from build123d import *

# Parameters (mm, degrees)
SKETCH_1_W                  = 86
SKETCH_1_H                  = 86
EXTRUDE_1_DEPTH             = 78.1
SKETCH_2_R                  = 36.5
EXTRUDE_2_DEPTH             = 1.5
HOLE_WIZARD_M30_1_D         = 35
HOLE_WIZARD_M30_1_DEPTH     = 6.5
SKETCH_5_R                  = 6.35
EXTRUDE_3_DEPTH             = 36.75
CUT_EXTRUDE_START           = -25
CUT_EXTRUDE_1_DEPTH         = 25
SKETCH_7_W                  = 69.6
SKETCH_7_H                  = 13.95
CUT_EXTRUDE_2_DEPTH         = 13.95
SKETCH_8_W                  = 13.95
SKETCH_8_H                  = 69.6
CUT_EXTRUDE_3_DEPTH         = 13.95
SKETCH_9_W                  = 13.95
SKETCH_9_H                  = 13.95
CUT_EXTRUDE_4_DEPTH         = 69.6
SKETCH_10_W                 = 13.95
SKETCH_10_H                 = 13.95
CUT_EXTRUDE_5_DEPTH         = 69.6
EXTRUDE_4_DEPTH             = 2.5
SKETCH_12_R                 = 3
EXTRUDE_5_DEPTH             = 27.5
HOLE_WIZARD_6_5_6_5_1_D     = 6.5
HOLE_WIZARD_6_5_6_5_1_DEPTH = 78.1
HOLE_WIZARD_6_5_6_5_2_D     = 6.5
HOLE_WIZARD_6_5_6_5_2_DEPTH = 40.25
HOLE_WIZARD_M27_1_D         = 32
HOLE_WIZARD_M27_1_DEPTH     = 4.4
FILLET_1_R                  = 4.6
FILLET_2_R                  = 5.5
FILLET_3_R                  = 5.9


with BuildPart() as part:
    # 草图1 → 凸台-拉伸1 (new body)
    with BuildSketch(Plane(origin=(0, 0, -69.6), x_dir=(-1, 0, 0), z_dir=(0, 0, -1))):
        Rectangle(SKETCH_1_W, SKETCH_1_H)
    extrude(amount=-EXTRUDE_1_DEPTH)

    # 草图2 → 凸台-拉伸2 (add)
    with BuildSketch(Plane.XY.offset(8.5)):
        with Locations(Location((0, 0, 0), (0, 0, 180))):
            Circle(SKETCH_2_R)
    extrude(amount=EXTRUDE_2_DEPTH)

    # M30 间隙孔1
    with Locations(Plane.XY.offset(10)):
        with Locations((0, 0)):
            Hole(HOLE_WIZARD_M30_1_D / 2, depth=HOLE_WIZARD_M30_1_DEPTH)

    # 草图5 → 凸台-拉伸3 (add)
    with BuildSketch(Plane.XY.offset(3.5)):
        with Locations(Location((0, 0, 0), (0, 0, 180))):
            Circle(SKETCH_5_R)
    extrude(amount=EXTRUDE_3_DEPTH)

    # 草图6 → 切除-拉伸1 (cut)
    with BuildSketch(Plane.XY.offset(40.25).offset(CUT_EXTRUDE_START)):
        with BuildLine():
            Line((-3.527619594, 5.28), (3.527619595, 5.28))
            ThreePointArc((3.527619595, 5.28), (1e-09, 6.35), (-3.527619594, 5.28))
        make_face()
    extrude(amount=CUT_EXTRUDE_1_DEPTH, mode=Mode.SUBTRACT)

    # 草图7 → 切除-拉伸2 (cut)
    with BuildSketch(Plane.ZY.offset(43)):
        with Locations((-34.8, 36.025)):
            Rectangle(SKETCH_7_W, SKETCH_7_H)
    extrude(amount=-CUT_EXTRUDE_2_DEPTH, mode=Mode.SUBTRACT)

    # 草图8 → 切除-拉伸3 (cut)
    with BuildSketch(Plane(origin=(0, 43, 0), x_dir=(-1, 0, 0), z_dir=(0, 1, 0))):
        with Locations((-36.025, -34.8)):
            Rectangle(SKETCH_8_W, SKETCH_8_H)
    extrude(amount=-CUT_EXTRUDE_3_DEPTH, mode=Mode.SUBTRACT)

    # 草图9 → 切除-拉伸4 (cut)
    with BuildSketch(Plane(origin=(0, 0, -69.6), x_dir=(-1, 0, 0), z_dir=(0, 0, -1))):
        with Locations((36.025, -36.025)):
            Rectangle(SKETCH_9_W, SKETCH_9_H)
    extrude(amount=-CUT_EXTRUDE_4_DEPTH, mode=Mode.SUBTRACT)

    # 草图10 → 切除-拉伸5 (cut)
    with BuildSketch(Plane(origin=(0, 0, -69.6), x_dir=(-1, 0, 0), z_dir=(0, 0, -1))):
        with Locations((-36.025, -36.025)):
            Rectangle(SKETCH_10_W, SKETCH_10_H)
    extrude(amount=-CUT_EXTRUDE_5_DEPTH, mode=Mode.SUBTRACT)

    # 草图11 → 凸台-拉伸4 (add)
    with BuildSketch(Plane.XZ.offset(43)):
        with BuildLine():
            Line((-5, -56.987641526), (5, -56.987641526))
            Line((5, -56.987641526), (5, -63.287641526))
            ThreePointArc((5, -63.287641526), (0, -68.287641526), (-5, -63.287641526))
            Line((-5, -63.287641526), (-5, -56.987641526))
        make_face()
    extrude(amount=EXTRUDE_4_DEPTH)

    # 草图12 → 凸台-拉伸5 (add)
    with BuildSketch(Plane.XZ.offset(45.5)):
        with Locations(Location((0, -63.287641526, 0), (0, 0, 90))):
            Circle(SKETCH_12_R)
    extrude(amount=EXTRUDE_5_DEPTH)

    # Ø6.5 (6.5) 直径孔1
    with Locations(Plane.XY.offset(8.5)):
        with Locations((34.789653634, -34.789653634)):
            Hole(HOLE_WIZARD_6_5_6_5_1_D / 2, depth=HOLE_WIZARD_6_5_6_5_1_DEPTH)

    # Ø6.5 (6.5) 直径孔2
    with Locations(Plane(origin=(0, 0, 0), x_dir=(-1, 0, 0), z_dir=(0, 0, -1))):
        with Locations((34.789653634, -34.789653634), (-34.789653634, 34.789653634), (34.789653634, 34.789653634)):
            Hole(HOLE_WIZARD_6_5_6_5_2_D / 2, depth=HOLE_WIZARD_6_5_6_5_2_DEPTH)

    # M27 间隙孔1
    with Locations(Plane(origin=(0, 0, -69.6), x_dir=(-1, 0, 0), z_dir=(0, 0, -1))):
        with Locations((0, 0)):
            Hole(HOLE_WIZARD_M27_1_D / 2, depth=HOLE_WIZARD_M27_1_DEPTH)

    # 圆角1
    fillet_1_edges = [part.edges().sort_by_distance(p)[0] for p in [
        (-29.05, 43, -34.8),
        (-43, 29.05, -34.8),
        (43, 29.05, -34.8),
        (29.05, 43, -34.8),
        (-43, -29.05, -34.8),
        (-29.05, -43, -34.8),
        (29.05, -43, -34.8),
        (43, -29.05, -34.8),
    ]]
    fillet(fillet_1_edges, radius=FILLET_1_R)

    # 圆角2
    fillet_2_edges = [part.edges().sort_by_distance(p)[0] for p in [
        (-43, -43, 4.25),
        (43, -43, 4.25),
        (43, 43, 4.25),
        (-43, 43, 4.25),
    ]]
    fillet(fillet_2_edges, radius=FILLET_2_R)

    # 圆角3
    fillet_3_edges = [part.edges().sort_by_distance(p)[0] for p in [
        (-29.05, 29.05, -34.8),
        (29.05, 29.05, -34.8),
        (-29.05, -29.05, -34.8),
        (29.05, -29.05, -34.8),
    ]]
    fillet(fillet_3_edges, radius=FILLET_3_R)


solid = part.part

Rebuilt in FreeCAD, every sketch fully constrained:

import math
import FreeCAD as App
import Part
import Sketcher
Q = App.Units.Quantity


def edges_at(feature, points):
    """Names of the edges that pass closest to the given points."""
    edges = feature.Shape.Edges
    near = lambda p: min(range(len(edges)), key=lambda i: edges[i].distToShape(Part.Vertex(*p))[0])
    return sorted({f"Edge{near(p) + 1}" for p in points})

doc = App.newDocument("Part")
body = doc.addObject("PartDesign::Body", "Body")

# Sketch on XY plane
sketch1 = body.newObject("Sketcher::SketchObject", "Sketch")
sketch1.AttachmentSupport = (doc.getObject("XY_Plane"), [""])
sketch1.MapMode = "FlatFace"
sketch1.AttachmentOffset = App.Placement(App.Vector(0, 0, -69.6), App.Rotation())
sketch1.addGeometry([
    Part.LineSegment(App.Vector(43, 43, 0), App.Vector(43, -43, 0)),
    Part.LineSegment(App.Vector(43, -43, 0), App.Vector(-43, -43, 0)),
    Part.LineSegment(App.Vector(-43, -43, 0), App.Vector(-43, 43, 0)),
    Part.LineSegment(App.Vector(-43, 43, 0), App.Vector(43, 43, 0)),
], False)
sketch1.addConstraint([
    Sketcher.Constraint("Coincident", 0, 2, 1, 1),
    Sketcher.Constraint("Coincident", 1, 2, 2, 1),
    Sketcher.Constraint("Coincident", 2, 2, 3, 1),
    Sketcher.Constraint("Coincident", 3, 2, 0, 1),
    Sketcher.Constraint("Vertical", 0),
    Sketcher.Constraint("Horizontal", 1),
    Sketcher.Constraint("Vertical", 2),
    Sketcher.Constraint("Horizontal", 3),
    Sketcher.Constraint("Symmetric", 0, 2, 2, 2, -1, 1),
    Sketcher.Constraint("Equal", 3, 0),
    Sketcher.Constraint("DistanceX", 1, 2, 1, 1, Q("86 mm")),
])
pad1 = body.newObject("PartDesign::Pad", "Pad")
pad1.Profile = sketch1
pad1.Length = 78.1

# Sketch on XY plane
sketch2 = body.newObject("Sketcher::SketchObject", "Sketch001")
sketch2.AttachmentSupport = (doc.getObject("XY_Plane"), [""])
sketch2.MapMode = "FlatFace"
sketch2.AttachmentOffset = App.Placement(App.Vector(0, 0, 8.5), App.Rotation())
sketch2.addGeometry(Part.Circle(App.Vector(0, 0, 0), App.Vector(0, 0, 1), 36.5), False)
sketch2.addConstraint([
    Sketcher.Constraint("Coincident", 0, 3, -1, 1),
    Sketcher.Constraint("Diameter", 0, Q("73 mm")),
])
pad2 = body.newObject("PartDesign::Pad", "Pad001")
pad2.Profile = sketch2
pad2.Length = 1.5

# Sketch on XY plane
sketch3 = body.newObject("Sketcher::SketchObject", "Sketch002")
sketch3.AttachmentSupport = (doc.getObject("XY_Plane"), [""])
sketch3.MapMode = "FlatFace"
sketch3.AttachmentOffset = App.Placement(App.Vector(0, 0, 10), App.Rotation())
sketch3.addGeometry(Part.Circle(App.Vector(0, 0, 0), App.Vector(0, 0, 1), 17.5), False)
sketch3.addConstraint([
    Sketcher.Constraint("Coincident", 0, 3, -1, 1),
    Sketcher.Constraint("Diameter", 0, Q("35 mm")),
])
doc.recompute()
hole = body.newObject("PartDesign::Hole", "Hole")
hole.Profile = sketch3
hole.ThreadType = "None"
hole.Diameter = 35
hole.DepthType = "Dimension"
hole.Depth = 6.5
hole.DrillPoint = "Flat"

# Sketch on XY plane
sketch4 = body.newObject("Sketcher::SketchObject", "Sketch003")
sketch4.AttachmentSupport = (doc.getObject("XY_Plane"), [""])
sketch4.MapMode = "FlatFace"
sketch4.AttachmentOffset = App.Placement(App.Vector(0, 0, 3.5), App.Rotation())
sketch4.addGeometry(Part.Circle(App.Vector(0, 0, 0), App.Vector(0, 0, 1), 6.35), False)
sketch4.addConstraint([
    Sketcher.Constraint("Coincident", 0, 3, -1, 1),
    Sketcher.Constraint("Diameter", 0, Q("12.7 mm")),
])
pad3 = body.newObject("PartDesign::Pad", "Pad002")
pad3.Profile = sketch4
pad3.Length = 36.75

# Sketch on XY plane
sketch5 = body.newObject("Sketcher::SketchObject", "Sketch004")
sketch5.AttachmentSupport = (doc.getObject("XY_Plane"), [""])
sketch5.MapMode = "FlatFace"
sketch5.AttachmentOffset = App.Placement(App.Vector(0, 0, 15.25), App.Rotation())
sketch5.addGeometry([
    Part.LineSegment(App.Vector(-3.52762, 5.28, 0), App.Vector(3.52762, 5.28, 0)),
    Part.ArcOfCircle(Part.Circle(App.Vector(0, 0, 0), App.Vector(0, 0, 1), 6.35), math.radians(56.252728), math.radians(123.747272)),
], False)
sketch5.addConstraint([
    Sketcher.Constraint("Coincident", 0, 1, 1, 2),
    Sketcher.Constraint("Coincident", 1, 1, 0, 2),
    Sketcher.Constraint("Horizontal", 0),
    Sketcher.Constraint("Coincident", 1, 3, -1, 1),
    Sketcher.Constraint("Radius", 1, Q("6.35 mm")),
    Sketcher.Constraint("DistanceY", -1, 1, 0, 1, Q("5.28 mm")),
])
pocket1 = body.newObject("PartDesign::Pocket", "Pocket")
pocket1.Profile = sketch5
pocket1.Length = 25
pocket1.Reversed = True

# Sketch on YZ plane
sketch6 = body.newObject("Sketcher::SketchObject", "Sketch005")
sketch6.AttachmentSupport = (doc.getObject("YZ_Plane"), [""])
sketch6.MapMode = "FlatFace"
sketch6.AttachmentOffset = App.Placement(App.Vector(0, 0, -43), App.Rotation())
sketch6.addGeometry([
    Part.LineSegment(App.Vector(43, -69.6, 0), App.Vector(29.05, -69.6, 0)),
    Part.LineSegment(App.Vector(29.05, -69.6, 0), App.Vector(29.05, 0, 0)),
    Part.LineSegment(App.Vector(29.05, 0, 0), App.Vector(43, 0, 0)),
    Part.LineSegment(App.Vector(43, 0, 0), App.Vector(43, -69.6, 0)),
], False)
sketch6.addConstraint([
    Sketcher.Constraint("Coincident", 0, 2, 1, 1),
    Sketcher.Constraint("Coincident", 1, 2, 2, 1),
    Sketcher.Constraint("Coincident", 2, 2, 3, 1),
    Sketcher.Constraint("Coincident", 3, 2, 0, 1),
    Sketcher.Constraint("Horizontal", 0),
    Sketcher.Constraint("Vertical", 1),
    Sketcher.Constraint("Horizontal", 2),
    Sketcher.Constraint("Vertical", 3),
    Sketcher.Constraint("PointOnObject", 1, 2, -1),
    Sketcher.Constraint("DistanceY", 1, 1, 1, 2, Q("69.6 mm")),
    Sketcher.Constraint("DistanceX", -1, 1, 2, 2, Q("43 mm")),
    Sketcher.Constraint("DistanceX", 0, 2, 0, 1, Q("13.95 mm")),
])
pocket2 = body.newObject("PartDesign::Pocket", "Pocket001")
pocket2.Profile = sketch6
pocket2.Length = 13.95
pocket2.Reversed = True

# Sketch on XZ plane
sketch7 = body.newObject("Sketcher::SketchObject", "Sketch006")
sketch7.AttachmentSupport = (doc.getObject("XZ_Plane"), [""])
sketch7.MapMode = "FlatFace"
sketch7.AttachmentOffset = App.Placement(App.Vector(0, 0, -43), App.Rotation())
sketch7.addGeometry([
    Part.LineSegment(App.Vector(43, 0, 0), App.Vector(43, -69.6, 0)),
    Part.LineSegment(App.Vector(43, -69.6, 0), App.Vector(29.05, -69.6, 0)),
    Part.LineSegment(App.Vector(29.05, -69.6, 0), App.Vector(29.05, 0, 0)),
    Part.LineSegment(App.Vector(29.05, 0, 0), App.Vector(43, 0, 0)),
], False)
sketch7.addConstraint([
    Sketcher.Constraint("Coincident", 0, 2, 1, 1),
    Sketcher.Constraint("Coincident", 1, 2, 2, 1),
    Sketcher.Constraint("Coincident", 2, 2, 3, 1),
    Sketcher.Constraint("Coincident", 3, 2, 0, 1),
    Sketcher.Constraint("Vertical", 0),
    Sketcher.Constraint("Horizontal", 1),
    Sketcher.Constraint("Vertical", 2),
    Sketcher.Constraint("Horizontal", 3),
    Sketcher.Constraint("PointOnObject", 2, 2, -1),
    Sketcher.Constraint("DistanceY", 0, 2, 0, 1, Q("69.6 mm")),
    Sketcher.Constraint("DistanceX", -1, 1, 0, 2, Q("43 mm")),
    Sketcher.Constraint("DistanceX", 1, 2, 1, 1, Q("13.95 mm")),
])
pocket3 = body.newObject("PartDesign::Pocket", "Pocket002")
pocket3.Profile = sketch7
pocket3.Length = 13.95
pocket3.Reversed = True

# Sketch on XY plane
sketch8 = body.newObject("Sketcher::SketchObject", "Sketch007")
sketch8.AttachmentSupport = (doc.getObject("XY_Plane"), [""])
sketch8.MapMode = "FlatFace"
sketch8.AttachmentOffset = App.Placement(App.Vector(0, 0, -69.6), App.Rotation())
sketch8.addGeometry([
    Part.LineSegment(App.Vector(-29.05, -29.05, 0), App.Vector(-29.05, -43, 0)),
    Part.LineSegment(App.Vector(-29.05, -43, 0), App.Vector(-43, -43, 0)),
    Part.LineSegment(App.Vector(-43, -43, 0), App.Vector(-43, -29.05, 0)),
    Part.LineSegment(App.Vector(-43, -29.05, 0), App.Vector(-29.05, -29.05, 0)),
], False)
sketch8.addConstraint([
    Sketcher.Constraint("Coincident", 0, 2, 1, 1),
    Sketcher.Constraint("Coincident", 1, 2, 2, 1),
    Sketcher.Constraint("Coincident", 2, 2, 3, 1),
    Sketcher.Constraint("Coincident", 3, 2, 0, 1),
    Sketcher.Constraint("Vertical", 0),
    Sketcher.Constraint("Horizontal", 1),
    Sketcher.Constraint("Vertical", 2),
    Sketcher.Constraint("Horizontal", 3),
    Sketcher.Constraint("Equal", 3, 0),
    Sketcher.Constraint("DistanceY", 0, 2, -1, 1, Q("43 mm")),
    Sketcher.Constraint("DistanceX", 1, 2, -1, 1, Q("43 mm")),
    Sketcher.Constraint("DistanceX", 1, 2, 1, 1, Q("13.95 mm")),
])
pocket4 = body.newObject("PartDesign::Pocket", "Pocket003")
pocket4.Profile = sketch8
pocket4.Length = 69.6
pocket4.Reversed = True

# Sketch on XY plane
sketch9 = body.newObject("Sketcher::SketchObject", "Sketch008")
sketch9.AttachmentSupport = (doc.getObject("XY_Plane"), [""])
sketch9.MapMode = "FlatFace"
sketch9.AttachmentOffset = App.Placement(App.Vector(0, 0, -69.6), App.Rotation())
sketch9.addGeometry([
    Part.LineSegment(App.Vector(43, -29.05, 0), App.Vector(43, -43, 0)),
    Part.LineSegment(App.Vector(43, -43, 0), App.Vector(29.05, -43, 0)),
    Part.LineSegment(App.Vector(29.05, -43, 0), App.Vector(29.05, -29.05, 0)),
    Part.LineSegment(App.Vector(29.05, -29.05, 0), App.Vector(43, -29.05, 0)),
], False)
sketch9.addConstraint([
    Sketcher.Constraint("Coincident", 0, 2, 1, 1),
    Sketcher.Constraint("Coincident", 1, 2, 2, 1),
    Sketcher.Constraint("Coincident", 2, 2, 3, 1),
    Sketcher.Constraint("Coincident", 3, 2, 0, 1),
    Sketcher.Constraint("Vertical", 0),
    Sketcher.Constraint("Horizontal", 1),
    Sketcher.Constraint("Vertical", 2),
    Sketcher.Constraint("Horizontal", 3),
    Sketcher.Constraint("Equal", 3, 0),
    Sketcher.Constraint("DistanceX", -1, 1, 0, 2, Q("43 mm")),
    Sketcher.Constraint("DistanceY", 0, 2, -1, 1, Q("43 mm")),
    Sketcher.Constraint("DistanceX", 1, 2, 1, 1, Q("13.95 mm")),
])
pocket5 = body.newObject("PartDesign::Pocket", "Pocket004")
pocket5.Profile = sketch9
pocket5.Length = 69.6
pocket5.Reversed = True

# Sketch on XZ plane
sketch10 = body.newObject("Sketcher::SketchObject", "Sketch009")
sketch10.AttachmentSupport = (doc.getObject("XZ_Plane"), [""])
sketch10.MapMode = "FlatFace"
sketch10.AttachmentOffset = App.Placement(App.Vector(0, 0, 43), App.Rotation())
sketch10.addGeometry([
    Part.LineSegment(App.Vector(5, -56.987642, 0), App.Vector(-5, -56.987642, 0)),
    Part.LineSegment(App.Vector(-5, -56.987642, 0), App.Vector(-5, -63.287642, 0)),
    Part.ArcOfCircle(Part.Circle(App.Vector(0, -63.287642, 0), App.Vector(0, 0, 1), 5), math.radians(180), math.radians(360)),
    Part.LineSegment(App.Vector(5, -63.287642, 0), App.Vector(5, -56.987642, 0)),
], False)
sketch10.addConstraint([
    Sketcher.Constraint("Coincident", 0, 2, 1, 1),
    Sketcher.Constraint("Tangent", 1, 2, 2, 1),
    Sketcher.Constraint("Tangent", 2, 2, 3, 1),
    Sketcher.Constraint("Coincident", 3, 2, 0, 1),
    Sketcher.Constraint("Horizontal", 0),
    Sketcher.Constraint("Vertical", 1),
    Sketcher.Constraint("Vertical", 3),
    Sketcher.Constraint("PointOnObject", 2, 3, -2),
    Sketcher.Constraint("Radius", 2, Q("5 mm")),
    Sketcher.Constraint("DistanceY", 1, 2, 1, 1, Q("6.3 mm")),
    Sketcher.Constraint("DistanceY", 2, 3, -1, 1, Q("63.287642 mm")),
])
pad4 = body.newObject("PartDesign::Pad", "Pad003")
pad4.Profile = sketch10
pad4.Length = 2.5

# Sketch on XZ plane
sketch11 = body.newObject("Sketcher::SketchObject", "Sketch010")
sketch11.AttachmentSupport = (doc.getObject("XZ_Plane"), [""])
sketch11.MapMode = "FlatFace"
sketch11.AttachmentOffset = App.Placement(App.Vector(0, 0, 45.5), App.Rotation())
sketch11.addGeometry(Part.Circle(App.Vector(0, -63.287642, 0), App.Vector(0, 0, 1), 3), False)
sketch11.addConstraint([
    Sketcher.Constraint("PointOnObject", 0, 3, -2),
    Sketcher.Constraint("Diameter", 0, Q("6 mm")),
    Sketcher.Constraint("DistanceY", 0, 3, -1, 1, Q("63.287642 mm")),
])
pad5 = body.newObject("PartDesign::Pad", "Pad004")
pad5.Profile = sketch11
pad5.Length = 27.5

# Sketch on XY plane
sketch12 = body.newObject("Sketcher::SketchObject", "Sketch011")
sketch12.AttachmentSupport = (doc.getObject("XY_Plane"), [""])
sketch12.MapMode = "FlatFace"
sketch12.AttachmentOffset = App.Placement(App.Vector(0, 0, 8.5), App.Rotation())
sketch12.addGeometry(Part.Circle(App.Vector(34.789654, -34.789654, 0), App.Vector(0, 0, 1), 3.25), False)
sketch12.addConstraint([
    Sketcher.Constraint("Diameter", 0, Q("6.5 mm")),
    Sketcher.Constraint("DistanceX", -1, 1, 0, 3, Q("34.789654 mm")),
    Sketcher.Constraint("DistanceY", 0, 3, -1, 1, Q("34.789654 mm")),
])
doc.recompute()
hole2 = body.newObject("PartDesign::Hole", "Hole001")
hole2.Profile = sketch12
hole2.ThreadType = "None"
hole2.Diameter = 6.5
hole2.DepthType = "Dimension"
hole2.Depth = 78.1
hole2.DrillPoint = "Flat"

# Sketch on XY plane
sketch13 = body.newObject("Sketcher::SketchObject", "Sketch012")
sketch13.AttachmentSupport = (doc.getObject("XY_Plane"), [""])
sketch13.MapMode = "FlatFace"
sketch13.addGeometry([
    Part.Circle(App.Vector(-34.789654, -34.789654, 0), App.Vector(0, 0, 1), 3.25),
    Part.Circle(App.Vector(34.789654, 34.789654, 0), App.Vector(0, 0, 1), 3.25),
    Part.Circle(App.Vector(-34.789654, 34.789654, 0), App.Vector(0, 0, 1), 3.25),
], False)
sketch13.addConstraint([
    Sketcher.Constraint("Equal", 0, 1),
    Sketcher.Constraint("Equal", 1, 2),
    Sketcher.Constraint("Symmetric", 0, 3, 1, 3, -1, 1),
    Sketcher.Constraint("Symmetric", 1, 3, 2, 3, -2),
    Sketcher.Constraint("Diameter", 0, Q("6.5 mm")),
    Sketcher.Constraint("DistanceX", 0, 3, -1, 1, Q("34.789654 mm")),
    Sketcher.Constraint("DistanceY", 0, 3, -1, 1, Q("34.789654 mm")),
])
doc.recompute()
hole3 = body.newObject("PartDesign::Hole", "Hole002")
hole3.Profile = sketch13
hole3.ThreadType = "None"
hole3.Diameter = 6.5
hole3.DepthType = "Dimension"
hole3.Depth = 40.25
hole3.DrillPoint = "Flat"
hole3.Reversed = True

# Sketch on XY plane
sketch14 = body.newObject("Sketcher::SketchObject", "Sketch013")
sketch14.AttachmentSupport = (doc.getObject("XY_Plane"), [""])
sketch14.MapMode = "FlatFace"
sketch14.AttachmentOffset = App.Placement(App.Vector(0, 0, -69.6), App.Rotation())
sketch14.addGeometry(Part.Circle(App.Vector(0, 0, 0), App.Vector(0, 0, 1), 16), False)
sketch14.addConstraint([
    Sketcher.Constraint("Coincident", 0, 3, -1, 1),
    Sketcher.Constraint("Diameter", 0, Q("32 mm")),
])
doc.recompute()
hole4 = body.newObject("PartDesign::Hole", "Hole003")
hole4.Profile = sketch14
hole4.ThreadType = "None"
hole4.Diameter = 32
hole4.DepthType = "Dimension"
hole4.Depth = 4.4
hole4.DrillPoint = "Flat"
hole4.Reversed = True
doc.recompute()

fillet = body.newObject("PartDesign::Fillet", "Fillet")
fillet.Base = (hole4, edges_at(hole4, [
    (-29.05, 43, -34.8),
    (-43, 29.05, -34.8),
    (43, 29.05, -34.8),
    (29.05, 43, -34.8),
    (-43, -29.05, -34.8),
    (-29.05, -43, -34.8),
    (29.05, -43, -34.8),
    (43, -29.05, -34.8),
]))
fillet.Radius = 4.6
doc.recompute()

fillet2 = body.newObject("PartDesign::Fillet", "Fillet001")
fillet2.Base = (fillet, edges_at(fillet, [
    (-43, -43, 4.25),
    (43, -43, 4.25),
    (43, 43, 4.25),
    (-43, 43, 4.25),
]))
fillet2.Radius = 5.5
doc.recompute()

fillet3 = body.newObject("PartDesign::Fillet", "Fillet002")
fillet3.Base = (fillet2, edges_at(fillet2, [
    (-29.05, 29.05, -34.8),
    (29.05, 29.05, -34.8),
    (-29.05, -29.05, -34.8),
    (29.05, -29.05, -34.8),
]))
fillet3.Radius = 5.9

doc.recompute()
